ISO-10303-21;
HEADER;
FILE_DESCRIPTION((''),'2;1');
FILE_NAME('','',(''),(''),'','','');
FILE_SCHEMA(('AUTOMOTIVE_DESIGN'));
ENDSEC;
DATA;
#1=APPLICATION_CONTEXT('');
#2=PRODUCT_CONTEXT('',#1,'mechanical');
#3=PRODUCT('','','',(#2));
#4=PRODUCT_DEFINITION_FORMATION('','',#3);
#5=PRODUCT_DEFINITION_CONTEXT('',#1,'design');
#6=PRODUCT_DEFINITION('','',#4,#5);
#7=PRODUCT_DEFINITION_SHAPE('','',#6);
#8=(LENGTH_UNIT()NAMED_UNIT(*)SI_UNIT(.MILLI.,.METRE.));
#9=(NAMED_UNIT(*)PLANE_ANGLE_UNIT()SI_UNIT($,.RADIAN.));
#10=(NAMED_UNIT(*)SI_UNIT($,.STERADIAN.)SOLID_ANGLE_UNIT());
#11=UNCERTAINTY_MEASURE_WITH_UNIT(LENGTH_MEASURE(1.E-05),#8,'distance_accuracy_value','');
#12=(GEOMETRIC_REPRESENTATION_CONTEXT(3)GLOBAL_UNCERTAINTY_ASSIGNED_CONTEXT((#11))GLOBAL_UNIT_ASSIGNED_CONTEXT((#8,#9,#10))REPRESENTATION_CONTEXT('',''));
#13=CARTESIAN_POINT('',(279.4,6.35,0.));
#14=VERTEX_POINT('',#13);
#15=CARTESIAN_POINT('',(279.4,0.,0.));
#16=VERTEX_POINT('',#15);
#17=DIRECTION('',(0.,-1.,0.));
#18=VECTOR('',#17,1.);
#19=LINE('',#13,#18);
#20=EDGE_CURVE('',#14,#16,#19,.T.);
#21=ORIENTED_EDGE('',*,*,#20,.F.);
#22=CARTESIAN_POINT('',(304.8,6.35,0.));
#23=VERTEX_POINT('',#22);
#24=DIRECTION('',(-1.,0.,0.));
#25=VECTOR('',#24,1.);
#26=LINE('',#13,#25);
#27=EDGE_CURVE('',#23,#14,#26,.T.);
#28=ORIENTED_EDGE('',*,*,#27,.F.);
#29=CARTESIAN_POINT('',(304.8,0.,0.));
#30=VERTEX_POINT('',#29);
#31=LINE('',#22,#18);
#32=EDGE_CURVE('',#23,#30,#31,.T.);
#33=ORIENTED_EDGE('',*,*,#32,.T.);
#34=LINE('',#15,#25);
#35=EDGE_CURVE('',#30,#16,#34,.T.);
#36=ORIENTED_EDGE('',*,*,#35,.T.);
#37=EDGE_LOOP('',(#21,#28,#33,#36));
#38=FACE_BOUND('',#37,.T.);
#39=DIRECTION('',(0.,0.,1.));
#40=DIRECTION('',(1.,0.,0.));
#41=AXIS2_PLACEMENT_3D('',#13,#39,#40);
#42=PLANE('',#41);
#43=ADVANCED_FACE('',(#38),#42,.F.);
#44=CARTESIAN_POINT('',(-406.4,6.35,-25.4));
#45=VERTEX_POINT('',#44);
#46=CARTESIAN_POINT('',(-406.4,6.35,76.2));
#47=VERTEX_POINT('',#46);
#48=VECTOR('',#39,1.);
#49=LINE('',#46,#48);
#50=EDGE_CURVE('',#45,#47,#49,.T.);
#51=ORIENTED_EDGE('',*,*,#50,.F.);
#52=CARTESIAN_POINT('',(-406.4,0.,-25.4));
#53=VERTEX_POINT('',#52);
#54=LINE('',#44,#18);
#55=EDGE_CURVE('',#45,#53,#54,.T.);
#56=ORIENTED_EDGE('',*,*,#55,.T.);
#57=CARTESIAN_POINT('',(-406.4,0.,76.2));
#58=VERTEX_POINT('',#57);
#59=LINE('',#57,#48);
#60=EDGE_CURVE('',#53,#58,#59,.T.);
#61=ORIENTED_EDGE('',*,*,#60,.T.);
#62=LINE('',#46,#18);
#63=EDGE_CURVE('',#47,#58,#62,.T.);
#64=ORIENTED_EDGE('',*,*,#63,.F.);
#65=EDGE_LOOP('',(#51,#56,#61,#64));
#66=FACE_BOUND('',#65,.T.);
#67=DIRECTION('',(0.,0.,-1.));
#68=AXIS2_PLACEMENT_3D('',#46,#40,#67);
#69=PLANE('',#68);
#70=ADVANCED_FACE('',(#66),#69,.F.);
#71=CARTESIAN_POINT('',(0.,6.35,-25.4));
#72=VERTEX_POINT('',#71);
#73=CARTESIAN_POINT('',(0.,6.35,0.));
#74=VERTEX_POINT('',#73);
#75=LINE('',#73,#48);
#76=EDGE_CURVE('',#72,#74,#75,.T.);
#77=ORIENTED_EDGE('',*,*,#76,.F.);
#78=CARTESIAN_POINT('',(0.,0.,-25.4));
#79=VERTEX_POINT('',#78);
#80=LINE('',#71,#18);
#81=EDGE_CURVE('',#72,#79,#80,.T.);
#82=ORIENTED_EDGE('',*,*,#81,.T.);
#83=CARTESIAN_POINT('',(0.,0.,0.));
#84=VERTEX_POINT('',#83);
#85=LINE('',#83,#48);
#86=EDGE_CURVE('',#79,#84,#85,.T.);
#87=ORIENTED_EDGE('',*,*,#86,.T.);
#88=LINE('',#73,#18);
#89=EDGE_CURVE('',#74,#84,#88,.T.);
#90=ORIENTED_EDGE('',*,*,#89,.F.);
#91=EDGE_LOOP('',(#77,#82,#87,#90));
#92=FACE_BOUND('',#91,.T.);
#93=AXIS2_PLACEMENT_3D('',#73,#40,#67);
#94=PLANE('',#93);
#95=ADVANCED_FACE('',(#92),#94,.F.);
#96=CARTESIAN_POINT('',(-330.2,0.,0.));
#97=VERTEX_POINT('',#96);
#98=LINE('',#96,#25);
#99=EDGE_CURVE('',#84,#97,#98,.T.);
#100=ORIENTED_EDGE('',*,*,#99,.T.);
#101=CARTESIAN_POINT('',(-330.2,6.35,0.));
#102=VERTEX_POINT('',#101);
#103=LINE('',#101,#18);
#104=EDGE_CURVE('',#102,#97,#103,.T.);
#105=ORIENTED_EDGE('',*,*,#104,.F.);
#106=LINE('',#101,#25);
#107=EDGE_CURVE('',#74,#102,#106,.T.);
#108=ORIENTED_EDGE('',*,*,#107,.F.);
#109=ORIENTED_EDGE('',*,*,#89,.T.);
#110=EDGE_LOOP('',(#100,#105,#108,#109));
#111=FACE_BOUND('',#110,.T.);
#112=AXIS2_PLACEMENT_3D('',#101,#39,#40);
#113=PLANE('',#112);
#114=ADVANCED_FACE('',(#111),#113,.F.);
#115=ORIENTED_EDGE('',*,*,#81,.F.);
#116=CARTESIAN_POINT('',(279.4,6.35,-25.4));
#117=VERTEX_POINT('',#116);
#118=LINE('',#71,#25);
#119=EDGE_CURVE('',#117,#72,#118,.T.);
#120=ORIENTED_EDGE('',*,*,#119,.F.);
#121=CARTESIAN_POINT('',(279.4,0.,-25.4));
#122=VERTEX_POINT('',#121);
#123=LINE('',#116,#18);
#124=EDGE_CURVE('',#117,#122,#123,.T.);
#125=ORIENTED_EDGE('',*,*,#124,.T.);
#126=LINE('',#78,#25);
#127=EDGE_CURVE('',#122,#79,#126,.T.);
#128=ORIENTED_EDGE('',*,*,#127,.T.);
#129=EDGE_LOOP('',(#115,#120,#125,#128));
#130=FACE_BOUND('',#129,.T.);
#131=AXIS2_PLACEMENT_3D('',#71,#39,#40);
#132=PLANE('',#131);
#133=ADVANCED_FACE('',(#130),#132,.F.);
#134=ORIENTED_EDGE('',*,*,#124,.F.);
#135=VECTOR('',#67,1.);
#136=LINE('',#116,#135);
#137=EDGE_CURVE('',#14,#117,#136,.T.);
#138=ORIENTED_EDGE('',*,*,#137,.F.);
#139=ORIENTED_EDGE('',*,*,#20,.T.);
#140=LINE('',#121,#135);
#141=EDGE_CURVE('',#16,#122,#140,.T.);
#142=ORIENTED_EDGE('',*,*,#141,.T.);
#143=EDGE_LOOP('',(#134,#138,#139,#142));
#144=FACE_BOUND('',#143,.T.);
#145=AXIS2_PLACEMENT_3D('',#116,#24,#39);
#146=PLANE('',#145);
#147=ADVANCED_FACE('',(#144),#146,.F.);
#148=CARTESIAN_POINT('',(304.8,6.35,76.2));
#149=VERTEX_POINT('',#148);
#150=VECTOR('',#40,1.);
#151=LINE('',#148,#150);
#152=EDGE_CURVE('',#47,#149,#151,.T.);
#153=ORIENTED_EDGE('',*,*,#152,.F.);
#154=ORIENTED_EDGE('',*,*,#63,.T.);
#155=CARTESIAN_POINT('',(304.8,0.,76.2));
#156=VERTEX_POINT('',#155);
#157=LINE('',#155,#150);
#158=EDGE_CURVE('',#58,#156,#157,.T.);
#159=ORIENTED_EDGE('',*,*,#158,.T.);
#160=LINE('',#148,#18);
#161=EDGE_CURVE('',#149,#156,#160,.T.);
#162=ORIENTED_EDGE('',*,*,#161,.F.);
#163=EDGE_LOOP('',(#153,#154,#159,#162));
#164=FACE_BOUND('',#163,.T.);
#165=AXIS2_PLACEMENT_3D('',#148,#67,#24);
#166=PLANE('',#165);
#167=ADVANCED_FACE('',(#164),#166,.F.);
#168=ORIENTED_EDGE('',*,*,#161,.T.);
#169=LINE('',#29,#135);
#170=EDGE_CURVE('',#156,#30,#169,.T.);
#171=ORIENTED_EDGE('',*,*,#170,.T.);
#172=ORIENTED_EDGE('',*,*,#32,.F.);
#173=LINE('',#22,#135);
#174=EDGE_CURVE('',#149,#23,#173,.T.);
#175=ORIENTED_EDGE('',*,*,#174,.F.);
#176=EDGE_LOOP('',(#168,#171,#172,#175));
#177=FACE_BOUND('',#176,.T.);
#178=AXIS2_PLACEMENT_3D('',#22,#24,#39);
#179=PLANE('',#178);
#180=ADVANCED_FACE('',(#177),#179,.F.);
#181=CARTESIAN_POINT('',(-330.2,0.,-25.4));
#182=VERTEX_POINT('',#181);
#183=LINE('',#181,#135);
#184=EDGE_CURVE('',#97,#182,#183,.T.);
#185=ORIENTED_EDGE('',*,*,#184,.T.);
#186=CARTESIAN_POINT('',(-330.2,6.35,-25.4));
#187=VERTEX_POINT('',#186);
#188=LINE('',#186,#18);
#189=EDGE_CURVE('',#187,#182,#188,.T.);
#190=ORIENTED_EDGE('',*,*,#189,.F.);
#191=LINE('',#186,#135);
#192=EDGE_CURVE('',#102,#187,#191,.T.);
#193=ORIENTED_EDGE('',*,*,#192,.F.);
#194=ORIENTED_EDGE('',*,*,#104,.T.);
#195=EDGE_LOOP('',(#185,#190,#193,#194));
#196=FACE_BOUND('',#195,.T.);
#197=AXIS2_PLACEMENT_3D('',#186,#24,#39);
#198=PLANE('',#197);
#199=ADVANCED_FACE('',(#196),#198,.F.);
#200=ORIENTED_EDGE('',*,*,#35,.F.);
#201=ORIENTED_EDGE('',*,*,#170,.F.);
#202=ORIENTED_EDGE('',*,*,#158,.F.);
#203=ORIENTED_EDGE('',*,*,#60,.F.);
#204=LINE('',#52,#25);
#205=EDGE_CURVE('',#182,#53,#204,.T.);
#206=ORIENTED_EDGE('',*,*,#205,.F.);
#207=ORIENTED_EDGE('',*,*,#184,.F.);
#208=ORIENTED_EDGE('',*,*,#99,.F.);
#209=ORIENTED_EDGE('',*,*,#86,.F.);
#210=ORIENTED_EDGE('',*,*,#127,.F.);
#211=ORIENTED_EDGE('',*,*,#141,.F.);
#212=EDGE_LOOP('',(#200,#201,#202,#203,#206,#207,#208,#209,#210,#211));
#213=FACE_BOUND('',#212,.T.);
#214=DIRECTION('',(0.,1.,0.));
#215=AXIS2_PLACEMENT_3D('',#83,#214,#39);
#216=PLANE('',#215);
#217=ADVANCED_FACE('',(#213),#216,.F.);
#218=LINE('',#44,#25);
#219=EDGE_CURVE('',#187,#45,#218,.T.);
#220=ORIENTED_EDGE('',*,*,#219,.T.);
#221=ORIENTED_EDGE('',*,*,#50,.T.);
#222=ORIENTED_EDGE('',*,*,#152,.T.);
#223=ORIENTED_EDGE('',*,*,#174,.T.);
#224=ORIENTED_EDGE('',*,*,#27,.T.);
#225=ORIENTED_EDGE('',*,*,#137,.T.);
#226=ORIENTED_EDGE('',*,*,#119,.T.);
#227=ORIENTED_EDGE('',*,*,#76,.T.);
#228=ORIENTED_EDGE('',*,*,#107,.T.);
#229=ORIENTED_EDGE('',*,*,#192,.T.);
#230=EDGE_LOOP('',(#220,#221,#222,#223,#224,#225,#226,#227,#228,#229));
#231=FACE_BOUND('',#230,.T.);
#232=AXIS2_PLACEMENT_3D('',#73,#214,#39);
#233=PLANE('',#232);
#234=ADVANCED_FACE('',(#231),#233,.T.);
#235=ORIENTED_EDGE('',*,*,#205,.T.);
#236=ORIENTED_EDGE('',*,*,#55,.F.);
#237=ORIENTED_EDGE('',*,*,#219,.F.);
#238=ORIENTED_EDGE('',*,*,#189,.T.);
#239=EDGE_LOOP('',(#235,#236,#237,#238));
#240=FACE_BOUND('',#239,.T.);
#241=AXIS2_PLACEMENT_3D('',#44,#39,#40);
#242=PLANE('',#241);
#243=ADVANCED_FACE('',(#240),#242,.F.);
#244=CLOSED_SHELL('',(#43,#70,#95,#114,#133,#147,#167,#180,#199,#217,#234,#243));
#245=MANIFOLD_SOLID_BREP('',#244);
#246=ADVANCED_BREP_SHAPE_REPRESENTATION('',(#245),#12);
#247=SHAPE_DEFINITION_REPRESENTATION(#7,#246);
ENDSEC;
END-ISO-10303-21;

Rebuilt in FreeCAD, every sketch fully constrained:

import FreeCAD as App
import Part
import Sketcher

V = App.Vector
Q = App.Units.Quantity

doc = App.newDocument("Part")
body = doc.addObject("PartDesign::Body", "Body")

sketch1 = body.newObject("Sketcher::SketchObject", "Sketch")
sketch1.AttachmentSupport = (doc.getObject("XZ_Plane"), [""])
sketch1.MapMode = "FlatFace"
sketch1.addGeometry([
    Part.LineSegment(V(0, -25, 0), V(0, 0, 0)),
    Part.LineSegment(V(0, 0, 0), V(-330, 0, 0)),
    Part.LineSegment(V(-330, 0, 0), V(-330, -25, 0)),
    Part.LineSegment(V(-330, -25, 0), V(-406, -25, 0)),
    Part.LineSegment(V(-406, -25, 0), V(-406, 76, 0)),
    Part.LineSegment(V(-406, 76, 0), V(305, 76, 0)),
    Part.LineSegment(V(305, 76, 0), V(305, 0, 0)),
    Part.LineSegment(V(305, 0, 0), V(279, 0, 0)),
    Part.LineSegment(V(279, 0, 0), V(279, -25, 0)),
    Part.LineSegment(V(279, -25, 0), V(0, -25, 0)),
], False)
sketch1.addConstraint([
    Sketcher.Constraint("Coincident", 0, 2, 1, 1),
    Sketcher.Constraint("Coincident", 1, 2, 2, 1),
    Sketcher.Constraint("Coincident", 2, 2, 3, 1),
    Sketcher.Constraint("Coincident", 3, 2, 4, 1),
    Sketcher.Constraint("Coincident", 4, 2, 5, 1),
    Sketcher.Constraint("Coincident", 5, 2, 6, 1),
    Sketcher.Constraint("Coincident", 6, 2, 7, 1),
    Sketcher.Constraint("Coincident", 7, 2, 8, 1),
    Sketcher.Constraint("Coincident", 8, 2, 9, 1),
    Sketcher.Constraint("Coincident", 9, 2, 0, 1),
    Sketcher.Constraint("Vertical", 0),
    Sketcher.Constraint("Horizontal", 1),
    Sketcher.Constraint("Vertical", 2),
    Sketcher.Constraint("Horizontal", 3),
    Sketcher.Constraint("Vertical", 4),
    Sketcher.Constraint("Horizontal", 5),
    Sketcher.Constraint("Vertical", 6),
    Sketcher.Constraint("Horizontal", 7),
    Sketcher.Constraint("Vertical", 8),
    Sketcher.Constraint("Horizontal", 9),
    Sketcher.Constraint("Coincident", 0, 2, -1, 1),
    Sketcher.Constraint("PointOnObject", 6, 2, -1),
    Sketcher.Constraint("Horizontal", 3, 2, 8, 2),
    Sketcher.Constraint("Equal", 7, 0),
    Sketcher.Constraint("Equal", 3, 6),
    Sketcher.Constraint("DistanceX", 1, 2, 1, 1, Q("13 in")),
    Sketcher.Constraint("DistanceX", 3, 2, 3, 1, Q("3 in")),
    Sketcher.Constraint("DistanceX", 5, 1, 5, 2, Q("28 in")),
    Sketcher.Constraint("DistanceX", 7, 2, 7, 1, Q("1 in")),
])
pad1 = body.newObject("PartDesign::Pad", "Pad")
pad1.Profile = sketch1
pad1.Length = Q("0.25 in")
pad1.Reversed = True

doc.recompute()
